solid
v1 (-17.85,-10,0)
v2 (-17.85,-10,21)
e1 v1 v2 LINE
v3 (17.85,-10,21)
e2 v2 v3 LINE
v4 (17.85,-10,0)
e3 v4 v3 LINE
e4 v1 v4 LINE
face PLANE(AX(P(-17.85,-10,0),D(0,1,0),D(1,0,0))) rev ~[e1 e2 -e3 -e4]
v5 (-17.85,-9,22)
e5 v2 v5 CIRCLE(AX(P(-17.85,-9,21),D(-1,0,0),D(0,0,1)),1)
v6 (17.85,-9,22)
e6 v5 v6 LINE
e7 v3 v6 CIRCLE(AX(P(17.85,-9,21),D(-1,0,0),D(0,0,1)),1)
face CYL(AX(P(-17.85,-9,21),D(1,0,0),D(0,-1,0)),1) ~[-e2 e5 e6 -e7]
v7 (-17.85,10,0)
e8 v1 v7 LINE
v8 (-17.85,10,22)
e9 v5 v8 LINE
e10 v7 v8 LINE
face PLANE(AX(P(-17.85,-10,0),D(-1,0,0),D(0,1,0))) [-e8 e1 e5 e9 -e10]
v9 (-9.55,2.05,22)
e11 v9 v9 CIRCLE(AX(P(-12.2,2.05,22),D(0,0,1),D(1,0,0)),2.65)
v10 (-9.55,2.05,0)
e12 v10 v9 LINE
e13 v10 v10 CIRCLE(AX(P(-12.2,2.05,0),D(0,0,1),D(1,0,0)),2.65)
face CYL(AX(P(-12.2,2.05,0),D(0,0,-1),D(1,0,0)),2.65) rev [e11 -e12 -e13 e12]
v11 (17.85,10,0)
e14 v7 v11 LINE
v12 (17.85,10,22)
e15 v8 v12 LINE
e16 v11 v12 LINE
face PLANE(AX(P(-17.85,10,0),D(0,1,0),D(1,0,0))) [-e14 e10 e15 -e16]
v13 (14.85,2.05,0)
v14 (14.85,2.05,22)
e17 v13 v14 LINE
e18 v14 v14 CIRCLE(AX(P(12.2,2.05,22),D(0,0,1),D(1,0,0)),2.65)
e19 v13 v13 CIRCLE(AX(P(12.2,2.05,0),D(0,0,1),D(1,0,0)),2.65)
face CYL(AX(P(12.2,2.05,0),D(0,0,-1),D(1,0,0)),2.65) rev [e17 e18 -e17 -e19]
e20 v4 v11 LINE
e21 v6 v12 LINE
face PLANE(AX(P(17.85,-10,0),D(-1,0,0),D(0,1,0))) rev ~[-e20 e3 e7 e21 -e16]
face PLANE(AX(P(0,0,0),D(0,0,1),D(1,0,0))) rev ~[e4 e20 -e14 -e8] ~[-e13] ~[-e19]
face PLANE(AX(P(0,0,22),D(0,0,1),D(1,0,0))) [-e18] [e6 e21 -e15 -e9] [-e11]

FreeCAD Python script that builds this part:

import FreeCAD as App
import Part
import Sketcher


def edges_at(feature, points):
    """Names of the edges that pass closest to the given points."""
    edges = feature.Shape.Edges
    near = lambda p: min(range(len(edges)), key=lambda i: edges[i].distToShape(Part.Vertex(*p))[0])
    return sorted({f"Edge{near(p) + 1}" for p in points})

doc = App.newDocument("Part")
body = doc.addObject("PartDesign::Body", "Body")

sketch1 = body.newObject("Sketcher::SketchObject", "Sketch")
sketch1.AttachmentSupport = (doc.getObject("XY_Plane"), [""])
sketch1.MapMode = "FlatFace"
sketch1.addGeometry([
    Part.LineSegment(App.Vector(-17.9, 10, 0), App.Vector(-17.9, -10, 0)),
    Part.LineSegment(App.Vector(-17.9, -10, 0), App.Vector(17.9, -10, 0)),
    Part.LineSegment(App.Vector(17.9, -10, 0), App.Vector(17.9, 10, 0)),
    Part.LineSegment(App.Vector(17.9, 10, 0), App.Vector(-17.9, 10, 0)),
    Part.Circle(App.Vector(-12.2, 2, 0), App.Vector(0, 0, 1), 2.6),
    Part.Circle(App.Vector(12.2, 2, 0), App.Vector(0, 0, 1), 2.6),
], False)
sketch1.addConstraint([
    Sketcher.Constraint("Coincident", 0, 2, 1, 1),
    Sketcher.Constraint("Coincident", 1, 2, 2, 1),
    Sketcher.Constraint("Coincident", 2, 2, 3, 1),
    Sketcher.Constraint("Coincident", 3, 2, 0, 1),
    Sketcher.Constraint("Vertical", 0),
    Sketcher.Constraint("Horizontal", 1),
    Sketcher.Constraint("Vertical", 2),
    Sketcher.Constraint("Horizontal", 3),
    Sketcher.Constraint("Equal", 4, 5),
    Sketcher.Constraint("Symmetric", 0, 2, 2, 2, -1, 1),
    Sketcher.Constraint("Symmetric", 4, 3, 5, 3, -2),
    Sketcher.Constraint("Diameter", 4, 5.3),
    Sketcher.Constraint("DistanceY", 0, 2, 0, 1, 20.0),
    Sketcher.Constraint("DistanceX", 1, 1, 1, 2, 35.7),
    Sketcher.Constraint("DistanceX", 4, 3, -1, 1, 12.2),
    Sketcher.Constraint("DistanceY", -1, 1, 4, 3, 2.05),
])
pad1 = body.newObject("PartDesign::Pad", "Pad")
pad1.Profile = sketch1
pad1.Length = 22
doc.recompute()

fillet = body.newObject("PartDesign::Fillet", "Fillet")
fillet.Base = (pad1, edges_at(pad1, [(0, -10, 22)]))
fillet.Radius = 1

doc.recompute()
